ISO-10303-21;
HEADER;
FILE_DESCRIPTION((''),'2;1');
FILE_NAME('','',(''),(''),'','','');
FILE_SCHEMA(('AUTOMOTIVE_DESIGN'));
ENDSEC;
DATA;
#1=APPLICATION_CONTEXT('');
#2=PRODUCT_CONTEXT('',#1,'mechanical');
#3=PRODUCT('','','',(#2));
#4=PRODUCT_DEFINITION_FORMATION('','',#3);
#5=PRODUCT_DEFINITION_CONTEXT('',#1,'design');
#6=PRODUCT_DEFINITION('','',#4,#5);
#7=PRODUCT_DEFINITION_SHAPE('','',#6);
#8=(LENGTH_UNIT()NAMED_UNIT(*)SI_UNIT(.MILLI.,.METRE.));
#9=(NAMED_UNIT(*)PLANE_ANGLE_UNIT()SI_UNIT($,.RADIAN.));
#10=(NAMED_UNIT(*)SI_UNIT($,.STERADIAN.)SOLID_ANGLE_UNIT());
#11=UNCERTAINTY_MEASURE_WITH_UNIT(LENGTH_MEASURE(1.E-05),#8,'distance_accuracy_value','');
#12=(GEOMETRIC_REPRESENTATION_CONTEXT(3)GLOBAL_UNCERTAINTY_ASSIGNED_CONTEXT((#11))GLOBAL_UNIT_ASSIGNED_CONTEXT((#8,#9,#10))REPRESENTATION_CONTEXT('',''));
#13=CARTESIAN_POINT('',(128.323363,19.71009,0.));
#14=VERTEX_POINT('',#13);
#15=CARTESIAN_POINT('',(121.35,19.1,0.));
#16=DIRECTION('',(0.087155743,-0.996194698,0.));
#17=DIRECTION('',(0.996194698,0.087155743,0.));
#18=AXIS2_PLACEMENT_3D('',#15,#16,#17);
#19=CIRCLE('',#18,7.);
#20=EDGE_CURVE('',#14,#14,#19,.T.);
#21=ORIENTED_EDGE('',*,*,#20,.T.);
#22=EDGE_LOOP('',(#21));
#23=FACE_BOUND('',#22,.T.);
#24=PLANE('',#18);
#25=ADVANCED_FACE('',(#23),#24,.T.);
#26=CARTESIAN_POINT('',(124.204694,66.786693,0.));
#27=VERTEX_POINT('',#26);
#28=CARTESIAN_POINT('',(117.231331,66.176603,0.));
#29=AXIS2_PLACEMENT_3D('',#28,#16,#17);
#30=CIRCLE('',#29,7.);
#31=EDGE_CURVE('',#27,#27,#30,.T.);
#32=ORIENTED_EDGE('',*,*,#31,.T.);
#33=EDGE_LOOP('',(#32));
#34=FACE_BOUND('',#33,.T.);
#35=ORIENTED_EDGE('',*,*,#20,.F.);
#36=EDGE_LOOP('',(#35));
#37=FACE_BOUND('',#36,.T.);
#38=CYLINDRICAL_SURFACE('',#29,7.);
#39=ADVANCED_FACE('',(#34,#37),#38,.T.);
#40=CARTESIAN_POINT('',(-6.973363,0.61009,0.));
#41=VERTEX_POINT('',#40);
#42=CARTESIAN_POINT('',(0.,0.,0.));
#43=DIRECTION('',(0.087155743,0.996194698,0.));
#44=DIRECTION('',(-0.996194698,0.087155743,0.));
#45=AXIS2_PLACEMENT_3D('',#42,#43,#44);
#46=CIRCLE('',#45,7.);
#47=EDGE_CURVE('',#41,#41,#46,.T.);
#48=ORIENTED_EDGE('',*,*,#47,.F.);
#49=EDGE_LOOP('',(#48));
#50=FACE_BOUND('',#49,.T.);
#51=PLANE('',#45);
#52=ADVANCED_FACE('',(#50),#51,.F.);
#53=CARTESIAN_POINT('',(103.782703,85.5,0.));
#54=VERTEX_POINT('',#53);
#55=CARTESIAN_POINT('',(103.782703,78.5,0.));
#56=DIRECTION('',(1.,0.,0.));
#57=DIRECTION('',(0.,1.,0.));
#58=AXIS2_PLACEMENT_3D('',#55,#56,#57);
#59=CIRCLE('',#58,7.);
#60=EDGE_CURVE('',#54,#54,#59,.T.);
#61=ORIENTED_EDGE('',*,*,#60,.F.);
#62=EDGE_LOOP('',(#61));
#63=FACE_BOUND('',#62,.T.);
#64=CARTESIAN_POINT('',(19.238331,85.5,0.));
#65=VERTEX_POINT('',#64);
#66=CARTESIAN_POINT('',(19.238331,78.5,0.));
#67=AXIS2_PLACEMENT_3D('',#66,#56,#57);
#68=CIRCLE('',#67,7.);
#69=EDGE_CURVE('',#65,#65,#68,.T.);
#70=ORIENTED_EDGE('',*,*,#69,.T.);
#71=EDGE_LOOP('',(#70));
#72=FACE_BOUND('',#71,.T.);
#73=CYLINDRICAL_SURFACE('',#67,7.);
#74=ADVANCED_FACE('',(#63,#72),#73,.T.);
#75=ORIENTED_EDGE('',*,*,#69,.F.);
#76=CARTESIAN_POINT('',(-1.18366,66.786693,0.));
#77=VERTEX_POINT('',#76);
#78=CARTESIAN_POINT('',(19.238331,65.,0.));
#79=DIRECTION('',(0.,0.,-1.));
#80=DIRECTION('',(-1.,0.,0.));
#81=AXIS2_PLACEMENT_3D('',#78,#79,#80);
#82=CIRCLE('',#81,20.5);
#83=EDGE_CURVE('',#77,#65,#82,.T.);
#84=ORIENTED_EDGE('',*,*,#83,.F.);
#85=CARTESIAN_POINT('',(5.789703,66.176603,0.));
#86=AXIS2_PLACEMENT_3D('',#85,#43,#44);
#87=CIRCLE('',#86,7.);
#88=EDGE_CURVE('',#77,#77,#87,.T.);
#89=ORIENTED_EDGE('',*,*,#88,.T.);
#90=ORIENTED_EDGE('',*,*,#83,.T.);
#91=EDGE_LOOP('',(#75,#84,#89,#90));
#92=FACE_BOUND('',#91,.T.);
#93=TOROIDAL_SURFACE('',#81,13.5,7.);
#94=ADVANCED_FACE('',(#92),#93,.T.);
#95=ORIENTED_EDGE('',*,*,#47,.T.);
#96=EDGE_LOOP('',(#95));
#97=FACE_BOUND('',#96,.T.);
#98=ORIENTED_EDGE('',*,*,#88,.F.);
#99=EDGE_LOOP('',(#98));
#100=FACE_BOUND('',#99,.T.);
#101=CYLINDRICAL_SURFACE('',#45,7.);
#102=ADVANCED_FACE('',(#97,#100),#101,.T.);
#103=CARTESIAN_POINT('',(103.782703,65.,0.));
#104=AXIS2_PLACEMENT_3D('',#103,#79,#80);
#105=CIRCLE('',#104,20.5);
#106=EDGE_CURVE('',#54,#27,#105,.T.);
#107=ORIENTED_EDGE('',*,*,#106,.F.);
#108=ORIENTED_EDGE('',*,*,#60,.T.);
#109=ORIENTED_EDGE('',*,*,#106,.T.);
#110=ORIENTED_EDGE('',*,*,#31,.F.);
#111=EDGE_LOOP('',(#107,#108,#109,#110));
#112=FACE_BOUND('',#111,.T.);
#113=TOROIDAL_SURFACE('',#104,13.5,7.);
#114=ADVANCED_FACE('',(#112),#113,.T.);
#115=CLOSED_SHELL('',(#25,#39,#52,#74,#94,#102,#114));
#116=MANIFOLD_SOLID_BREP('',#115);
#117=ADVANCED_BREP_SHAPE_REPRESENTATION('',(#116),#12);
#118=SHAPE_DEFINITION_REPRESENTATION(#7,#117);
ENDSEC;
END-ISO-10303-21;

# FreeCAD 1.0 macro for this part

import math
import FreeCAD as App
import Part
import Sketcher

V = App.Vector
Q = App.Units.Quantity

doc = App.newDocument("Part")
body = doc.addObject("PartDesign::Body", "Body")

sketch1 = body.newObject("Sketcher::SketchObject", "Sketch")
sketch1.Placement = App.Placement(V(0, 0, 0), App.Rotation(V(0.996194698, -0.087155743, 0), V(0, 0, -1), V(0.087155743, 0.996194698, 0), "ZXY"))
sketch1.addGeometry(Part.Circle(V(0, 0, 0), V(0, 0, 1), 7), False)
sketch1.addConstraint([
    Sketcher.Constraint("Coincident", 0, 3, -1, 1),
    Sketcher.Constraint("Diameter", 0, Q("14 mm")),
])

sketch2 = body.newObject("Sketcher::SketchObject", "Sketch001")
sketch2.AttachmentSupport = (doc.getObject("XY_Plane"), [""])
sketch2.MapMode = "FlatFace"
sketch2.addGeometry([
    Part.LineSegment(V(0, 0, 0), V(5.789703, 66.176603, 0)),
    Part.ArcOfCircle(Part.Circle(V(19.238331, 65, 0), V(0, 0, 1), 13.5), math.radians(90), math.radians(175)),
    Part.LineSegment(V(19.238331, 78.5, 0), V(103.782703, 78.5, 0)),
    Part.ArcOfCircle(Part.Circle(V(103.782703, 65, 0), V(0, 0, 1), 13.5), math.radians(5), math.radians(90)),
    Part.LineSegment(V(117.231331, 66.176603, 0), V(121.35, 19.1, 0)),
], False)
sketch2.addConstraint([
    Sketcher.Constraint("Tangent", 0, 2, 1, 2),
    Sketcher.Constraint("Tangent", 1, 1, 2, 1),
    Sketcher.Constraint("Tangent", 2, 2, 3, 2),
    Sketcher.Constraint("Tangent", 3, 1, 4, 1),
    Sketcher.Constraint("Horizontal", 2),
    Sketcher.Constraint("Coincident", 0, 1, -1, 1),
    Sketcher.Constraint("Equal", 1, 3),
    Sketcher.Constraint("Horizontal", 0, 2, 3, 1),
    Sketcher.Constraint("Radius", 1, Q("13.5 mm")),
    Sketcher.Constraint("Angle", 0, Q("85 deg")),
    Sketcher.Constraint("DistanceY", -1, 1, 1, 3, Q("65 mm")),
    Sketcher.Constraint("DistanceY", -1, 1, 4, 2, Q("19.1 mm")),
    Sketcher.Constraint("DistanceX", -1, 1, 4, 2, Q("121.35 mm")),
])
doc.recompute()

additivepipe = body.newObject("PartDesign::AdditivePipe", "AdditivePipe")
additivepipe.Profile = sketch1
additivepipe.Spine = (sketch2, ["Edge1", "Edge2", "Edge3", "Edge4", "Edge5"])

doc.recompute()
